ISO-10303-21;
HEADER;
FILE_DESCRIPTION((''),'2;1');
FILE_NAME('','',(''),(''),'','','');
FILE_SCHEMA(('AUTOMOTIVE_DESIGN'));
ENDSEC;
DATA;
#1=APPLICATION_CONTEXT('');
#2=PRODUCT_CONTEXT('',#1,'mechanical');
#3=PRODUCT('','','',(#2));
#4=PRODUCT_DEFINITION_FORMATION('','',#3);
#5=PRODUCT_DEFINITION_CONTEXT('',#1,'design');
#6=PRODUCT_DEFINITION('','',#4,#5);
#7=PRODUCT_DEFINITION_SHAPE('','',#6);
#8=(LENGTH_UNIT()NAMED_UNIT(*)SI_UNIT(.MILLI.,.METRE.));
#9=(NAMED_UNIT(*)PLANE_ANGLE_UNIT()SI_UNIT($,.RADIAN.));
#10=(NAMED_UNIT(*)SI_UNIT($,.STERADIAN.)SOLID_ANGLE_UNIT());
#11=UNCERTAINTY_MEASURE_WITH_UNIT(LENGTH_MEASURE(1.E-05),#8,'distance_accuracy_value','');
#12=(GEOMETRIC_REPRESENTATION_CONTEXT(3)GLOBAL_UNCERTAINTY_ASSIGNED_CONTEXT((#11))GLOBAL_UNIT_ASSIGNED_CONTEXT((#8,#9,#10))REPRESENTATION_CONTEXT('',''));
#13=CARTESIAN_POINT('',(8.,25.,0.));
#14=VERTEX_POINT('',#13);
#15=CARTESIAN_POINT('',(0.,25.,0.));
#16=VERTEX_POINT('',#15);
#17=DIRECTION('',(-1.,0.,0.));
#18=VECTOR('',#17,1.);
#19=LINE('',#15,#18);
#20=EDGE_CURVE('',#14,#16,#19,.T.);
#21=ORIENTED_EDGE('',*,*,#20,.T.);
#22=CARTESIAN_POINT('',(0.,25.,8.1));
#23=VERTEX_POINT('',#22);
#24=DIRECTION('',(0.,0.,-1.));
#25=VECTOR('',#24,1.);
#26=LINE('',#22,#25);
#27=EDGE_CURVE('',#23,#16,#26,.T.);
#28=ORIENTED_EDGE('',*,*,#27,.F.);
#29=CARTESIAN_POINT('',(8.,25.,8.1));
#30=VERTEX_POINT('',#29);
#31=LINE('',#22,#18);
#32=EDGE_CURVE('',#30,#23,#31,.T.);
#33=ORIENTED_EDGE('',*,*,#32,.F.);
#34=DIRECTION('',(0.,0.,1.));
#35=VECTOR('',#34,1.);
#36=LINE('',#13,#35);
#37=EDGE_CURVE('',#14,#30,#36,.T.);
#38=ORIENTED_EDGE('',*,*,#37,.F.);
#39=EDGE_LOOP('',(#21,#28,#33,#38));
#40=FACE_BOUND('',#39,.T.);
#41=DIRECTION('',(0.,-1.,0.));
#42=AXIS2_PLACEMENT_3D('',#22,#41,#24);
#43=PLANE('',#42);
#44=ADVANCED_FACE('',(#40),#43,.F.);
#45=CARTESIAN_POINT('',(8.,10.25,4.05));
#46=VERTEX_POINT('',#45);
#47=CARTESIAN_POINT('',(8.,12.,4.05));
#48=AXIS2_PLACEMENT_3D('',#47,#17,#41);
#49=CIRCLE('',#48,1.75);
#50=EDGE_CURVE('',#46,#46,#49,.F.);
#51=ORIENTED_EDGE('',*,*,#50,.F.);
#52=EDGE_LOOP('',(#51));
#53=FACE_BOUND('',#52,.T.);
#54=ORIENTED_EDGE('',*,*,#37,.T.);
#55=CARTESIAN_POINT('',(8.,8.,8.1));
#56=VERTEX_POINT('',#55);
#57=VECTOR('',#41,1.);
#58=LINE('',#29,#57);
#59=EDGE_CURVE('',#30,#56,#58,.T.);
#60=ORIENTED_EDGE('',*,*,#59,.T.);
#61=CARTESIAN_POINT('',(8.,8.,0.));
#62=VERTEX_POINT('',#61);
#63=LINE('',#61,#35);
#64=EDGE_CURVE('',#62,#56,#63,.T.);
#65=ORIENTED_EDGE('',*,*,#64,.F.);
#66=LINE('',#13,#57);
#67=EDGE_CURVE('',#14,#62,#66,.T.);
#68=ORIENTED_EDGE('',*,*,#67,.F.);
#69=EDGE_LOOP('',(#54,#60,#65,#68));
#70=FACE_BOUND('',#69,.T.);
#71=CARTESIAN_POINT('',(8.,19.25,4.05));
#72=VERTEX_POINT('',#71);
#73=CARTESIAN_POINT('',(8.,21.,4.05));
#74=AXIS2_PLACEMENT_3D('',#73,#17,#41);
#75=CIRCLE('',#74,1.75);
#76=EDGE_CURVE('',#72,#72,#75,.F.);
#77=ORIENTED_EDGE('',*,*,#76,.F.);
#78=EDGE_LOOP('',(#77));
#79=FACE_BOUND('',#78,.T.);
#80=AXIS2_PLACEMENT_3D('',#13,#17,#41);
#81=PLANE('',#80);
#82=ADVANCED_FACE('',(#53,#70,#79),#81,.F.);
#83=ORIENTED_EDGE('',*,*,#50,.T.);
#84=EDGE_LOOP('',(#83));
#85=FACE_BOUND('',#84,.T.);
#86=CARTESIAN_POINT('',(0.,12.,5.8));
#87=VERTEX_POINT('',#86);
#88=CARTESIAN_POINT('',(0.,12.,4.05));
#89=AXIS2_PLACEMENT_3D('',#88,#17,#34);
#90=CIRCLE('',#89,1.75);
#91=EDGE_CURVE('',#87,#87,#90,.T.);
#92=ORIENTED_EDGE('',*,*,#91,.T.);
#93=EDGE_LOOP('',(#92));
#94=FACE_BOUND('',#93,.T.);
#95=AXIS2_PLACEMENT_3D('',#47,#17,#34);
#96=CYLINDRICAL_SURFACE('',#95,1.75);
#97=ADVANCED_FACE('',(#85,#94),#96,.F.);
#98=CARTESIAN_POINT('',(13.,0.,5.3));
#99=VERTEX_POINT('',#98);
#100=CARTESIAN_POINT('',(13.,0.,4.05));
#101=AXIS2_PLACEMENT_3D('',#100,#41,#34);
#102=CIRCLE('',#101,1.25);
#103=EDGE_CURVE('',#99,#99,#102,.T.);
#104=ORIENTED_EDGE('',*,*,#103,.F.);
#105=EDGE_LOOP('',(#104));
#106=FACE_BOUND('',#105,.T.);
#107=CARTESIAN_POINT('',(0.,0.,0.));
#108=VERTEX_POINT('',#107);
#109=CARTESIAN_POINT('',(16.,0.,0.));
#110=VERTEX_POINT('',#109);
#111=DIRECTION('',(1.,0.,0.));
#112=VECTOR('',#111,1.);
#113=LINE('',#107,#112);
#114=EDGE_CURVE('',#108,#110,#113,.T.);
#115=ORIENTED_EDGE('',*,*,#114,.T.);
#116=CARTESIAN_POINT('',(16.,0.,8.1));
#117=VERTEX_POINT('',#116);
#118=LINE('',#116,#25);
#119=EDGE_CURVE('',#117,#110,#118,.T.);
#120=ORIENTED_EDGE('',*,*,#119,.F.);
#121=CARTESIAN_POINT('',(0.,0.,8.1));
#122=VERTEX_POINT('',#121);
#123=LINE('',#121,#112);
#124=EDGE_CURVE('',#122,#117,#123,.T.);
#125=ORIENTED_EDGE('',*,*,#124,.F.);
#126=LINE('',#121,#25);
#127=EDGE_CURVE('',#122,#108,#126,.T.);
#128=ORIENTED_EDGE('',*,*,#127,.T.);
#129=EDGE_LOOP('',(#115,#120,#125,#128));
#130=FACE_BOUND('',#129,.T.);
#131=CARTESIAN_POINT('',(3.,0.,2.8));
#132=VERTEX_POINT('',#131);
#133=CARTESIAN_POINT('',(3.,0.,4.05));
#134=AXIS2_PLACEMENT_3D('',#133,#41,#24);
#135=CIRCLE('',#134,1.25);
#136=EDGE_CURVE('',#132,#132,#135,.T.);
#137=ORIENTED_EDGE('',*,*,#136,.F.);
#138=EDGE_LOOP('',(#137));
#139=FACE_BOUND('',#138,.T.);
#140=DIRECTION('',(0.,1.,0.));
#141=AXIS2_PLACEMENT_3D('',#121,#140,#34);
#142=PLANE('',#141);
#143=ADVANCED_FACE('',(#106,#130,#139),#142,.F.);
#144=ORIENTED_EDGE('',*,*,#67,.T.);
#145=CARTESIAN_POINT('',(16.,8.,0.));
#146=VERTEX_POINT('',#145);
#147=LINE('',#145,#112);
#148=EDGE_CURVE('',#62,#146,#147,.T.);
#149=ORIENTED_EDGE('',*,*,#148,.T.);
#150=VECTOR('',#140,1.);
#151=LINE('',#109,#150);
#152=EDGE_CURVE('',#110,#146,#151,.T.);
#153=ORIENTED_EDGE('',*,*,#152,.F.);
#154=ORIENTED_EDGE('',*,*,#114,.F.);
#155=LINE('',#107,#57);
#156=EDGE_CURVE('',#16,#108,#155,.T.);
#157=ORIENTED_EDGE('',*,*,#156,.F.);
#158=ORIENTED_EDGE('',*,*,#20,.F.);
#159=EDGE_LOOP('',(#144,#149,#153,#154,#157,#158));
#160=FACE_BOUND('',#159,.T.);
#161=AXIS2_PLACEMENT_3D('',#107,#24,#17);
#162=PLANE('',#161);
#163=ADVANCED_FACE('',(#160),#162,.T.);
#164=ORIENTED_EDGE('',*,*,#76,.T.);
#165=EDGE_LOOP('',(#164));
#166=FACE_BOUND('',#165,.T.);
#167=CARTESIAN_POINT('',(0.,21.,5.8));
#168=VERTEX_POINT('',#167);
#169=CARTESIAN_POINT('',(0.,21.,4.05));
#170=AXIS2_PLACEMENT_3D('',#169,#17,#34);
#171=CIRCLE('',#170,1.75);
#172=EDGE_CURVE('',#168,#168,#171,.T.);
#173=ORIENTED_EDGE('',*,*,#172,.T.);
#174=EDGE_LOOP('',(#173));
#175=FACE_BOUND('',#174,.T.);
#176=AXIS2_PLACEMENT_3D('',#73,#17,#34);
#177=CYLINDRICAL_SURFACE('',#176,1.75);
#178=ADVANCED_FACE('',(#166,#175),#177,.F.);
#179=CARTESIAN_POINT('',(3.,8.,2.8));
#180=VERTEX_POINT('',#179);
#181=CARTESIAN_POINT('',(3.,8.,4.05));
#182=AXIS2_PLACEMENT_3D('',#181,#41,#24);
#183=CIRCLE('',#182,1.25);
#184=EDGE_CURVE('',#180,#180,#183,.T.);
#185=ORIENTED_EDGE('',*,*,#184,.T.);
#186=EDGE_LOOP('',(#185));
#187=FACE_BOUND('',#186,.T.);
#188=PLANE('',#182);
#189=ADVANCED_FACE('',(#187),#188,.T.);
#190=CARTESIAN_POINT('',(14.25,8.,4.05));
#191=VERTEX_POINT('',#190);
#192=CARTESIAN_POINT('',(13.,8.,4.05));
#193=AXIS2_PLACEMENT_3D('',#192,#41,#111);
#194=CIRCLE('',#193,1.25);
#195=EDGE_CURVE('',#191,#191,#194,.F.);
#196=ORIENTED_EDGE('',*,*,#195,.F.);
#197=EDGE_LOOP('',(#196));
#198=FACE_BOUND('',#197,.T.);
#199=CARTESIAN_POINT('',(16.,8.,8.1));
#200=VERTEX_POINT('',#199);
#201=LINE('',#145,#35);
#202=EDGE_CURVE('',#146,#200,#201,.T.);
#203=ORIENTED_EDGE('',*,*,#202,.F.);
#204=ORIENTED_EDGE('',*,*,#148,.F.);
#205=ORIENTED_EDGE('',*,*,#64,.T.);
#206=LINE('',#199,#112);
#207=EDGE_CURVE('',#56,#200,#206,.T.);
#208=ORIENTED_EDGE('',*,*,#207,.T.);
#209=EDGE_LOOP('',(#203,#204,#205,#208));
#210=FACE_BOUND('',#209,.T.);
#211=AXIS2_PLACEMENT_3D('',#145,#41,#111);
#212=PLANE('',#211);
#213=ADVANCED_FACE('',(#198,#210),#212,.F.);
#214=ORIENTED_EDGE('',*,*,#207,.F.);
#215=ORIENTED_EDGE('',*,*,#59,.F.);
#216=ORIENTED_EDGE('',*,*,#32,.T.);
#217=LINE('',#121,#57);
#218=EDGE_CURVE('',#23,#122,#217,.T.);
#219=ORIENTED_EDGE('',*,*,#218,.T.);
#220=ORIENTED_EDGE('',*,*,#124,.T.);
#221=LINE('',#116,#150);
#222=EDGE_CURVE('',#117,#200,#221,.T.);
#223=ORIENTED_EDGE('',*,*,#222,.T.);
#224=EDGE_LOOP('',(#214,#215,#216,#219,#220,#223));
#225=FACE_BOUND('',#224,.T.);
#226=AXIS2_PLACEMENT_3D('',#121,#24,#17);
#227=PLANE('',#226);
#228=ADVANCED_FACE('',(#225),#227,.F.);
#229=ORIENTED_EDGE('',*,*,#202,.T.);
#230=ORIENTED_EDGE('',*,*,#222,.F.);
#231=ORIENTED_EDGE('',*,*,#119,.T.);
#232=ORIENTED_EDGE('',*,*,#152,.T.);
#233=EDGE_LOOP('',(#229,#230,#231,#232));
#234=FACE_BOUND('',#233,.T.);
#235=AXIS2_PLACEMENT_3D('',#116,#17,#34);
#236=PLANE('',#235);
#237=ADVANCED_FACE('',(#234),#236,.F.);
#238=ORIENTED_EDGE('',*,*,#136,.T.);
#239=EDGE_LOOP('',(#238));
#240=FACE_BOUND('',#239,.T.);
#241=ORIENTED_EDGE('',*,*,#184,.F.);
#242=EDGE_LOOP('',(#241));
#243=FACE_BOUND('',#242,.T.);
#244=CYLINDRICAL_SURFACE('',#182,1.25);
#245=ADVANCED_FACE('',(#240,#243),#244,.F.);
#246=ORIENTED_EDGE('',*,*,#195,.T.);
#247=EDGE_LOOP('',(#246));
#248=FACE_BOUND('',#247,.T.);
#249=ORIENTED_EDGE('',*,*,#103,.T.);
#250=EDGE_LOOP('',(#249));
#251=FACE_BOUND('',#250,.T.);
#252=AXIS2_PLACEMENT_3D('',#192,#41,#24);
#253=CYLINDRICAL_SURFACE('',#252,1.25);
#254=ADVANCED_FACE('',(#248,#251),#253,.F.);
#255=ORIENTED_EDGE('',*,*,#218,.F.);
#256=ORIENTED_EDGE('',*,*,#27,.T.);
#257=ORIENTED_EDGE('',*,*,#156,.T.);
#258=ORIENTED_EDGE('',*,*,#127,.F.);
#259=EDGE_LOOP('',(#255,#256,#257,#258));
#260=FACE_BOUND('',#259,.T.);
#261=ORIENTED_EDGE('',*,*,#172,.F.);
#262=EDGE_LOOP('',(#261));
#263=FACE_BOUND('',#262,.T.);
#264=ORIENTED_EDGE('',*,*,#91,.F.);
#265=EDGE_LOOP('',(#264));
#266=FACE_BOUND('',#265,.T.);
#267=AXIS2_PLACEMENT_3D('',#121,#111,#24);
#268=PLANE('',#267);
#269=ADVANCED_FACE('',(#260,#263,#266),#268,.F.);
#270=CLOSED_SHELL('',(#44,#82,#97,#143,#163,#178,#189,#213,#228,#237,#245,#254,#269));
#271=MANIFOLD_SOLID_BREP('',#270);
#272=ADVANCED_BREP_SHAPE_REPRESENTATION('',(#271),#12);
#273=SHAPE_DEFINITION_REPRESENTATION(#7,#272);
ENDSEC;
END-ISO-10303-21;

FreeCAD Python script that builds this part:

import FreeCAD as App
import Part
import Sketcher

V = App.Vector


def add_polygon(sketch, points):
    """Adds a closed chain of lines whose ends are joined by coincident constraints."""
    first, n = sketch.GeometryCount, len(points)
    for a, b in zip(points, points[1:] + points[:1]):
        sketch.addGeometry(Part.LineSegment(App.Vector(*a, 0), App.Vector(*b, 0)), False)
    for i in range(n):
        sketch.addConstraint(Sketcher.Constraint("Coincident", first + i, 2, first + (i + 1) % n, 1))

doc = App.newDocument("Part")
params = doc.addObject("Spreadsheet::Sheet", "Params")
for row, (alias, value) in enumerate([
    ("sketch1_width", "16 mm"),
    ("sketch1_height", "25 mm"),
    ("pad1_length", "8.1 mm"),
    ("sketch2_diameter", "2.5 mm"),
    ("pocket1_length", "8 mm"),
    ("sketch3_diameter", "3.5 mm"),
    ("pocket2_length", "8 mm"),
    ("sketch4_width", "8 mm"),
    ("sketch4_height", "17 mm"),
], start=1):
    params.set(f"A{row}", alias)
    params.set(f"B{row}", "=" + value)
    params.setAlias(f"B{row}", alias)

body = doc.addObject("PartDesign::Body", "Body")

# Sketch on XY plane
sketch1 = body.newObject("Sketcher::SketchObject", "Sketch")
sketch1.AttachmentSupport = (doc.getObject("XY_Plane"), [""])
sketch1.MapMode = "FlatFace"
add_polygon(sketch1, [(0, 25), (0, 0), (16, 0), (16, 25)])  # lines 0-3
sketch1.addConstraint(Sketcher.Constraint("Vertical", 0))
sketch1.addConstraint(Sketcher.Constraint("Horizontal", 1))
sketch1.addConstraint(Sketcher.Constraint("Vertical", 2))
sketch1.addConstraint(Sketcher.Constraint("Horizontal", 3))
sketch1.addConstraint(Sketcher.Constraint("Coincident", 0, 2, -1, 1))
sketch1.addConstraint(Sketcher.Constraint("DistanceX", 1, 1, 1, 2, 16.0))
sketch1.addConstraint(Sketcher.Constraint("DistanceY", 0, 2, 0, 1, 25.0))
sketch1.setExpression("Constraints[9]", "Params.sketch1_width")
sketch1.setExpression("Constraints[10]", "Params.sketch1_height")
pad1 = body.newObject("PartDesign::Pad", "Pad")
pad1.Profile = sketch1
pad1.setExpression("Length", "Params.pad1_length")

# Sketch on XZ plane
sketch2 = body.newObject("Sketcher::SketchObject", "Sketch001")
sketch2.AttachmentSupport = (doc.getObject("XZ_Plane"), [""])
sketch2.MapMode = "FlatFace"
sketch2.addGeometry(Part.Circle(V(3, 4, 0), V(0, 0, 1), 1.2), False)
sketch2.addGeometry(Part.Circle(V(13, 4, 0), V(0, 0, 1), 1.2), False)
sketch2.addConstraint(Sketcher.Constraint("Equal", 0, 1))
sketch2.addConstraint(Sketcher.Constraint("Horizontal", 0, 3, 1, 3))
sketch2.addConstraint(Sketcher.Constraint("Diameter", 0, 2.5))
sketch2.addConstraint(Sketcher.Constraint("DistanceX", -1, 1, 0, 3, 3.0))
sketch2.addConstraint(Sketcher.Constraint("DistanceX", -1, 1, 1, 3, 13.0))
sketch2.addConstraint(Sketcher.Constraint("DistanceY", -1, 1, 0, 3, 4.05))
sketch2.setExpression("Constraints[2]", "Params.sketch2_diameter")
pocket1 = body.newObject("PartDesign::Pocket", "Pocket")
pocket1.Profile = sketch2
pocket1.setExpression("Length", "Params.pocket1_length")

# Sketch on YZ plane
sketch3 = body.newObject("Sketcher::SketchObject", "Sketch002")
sketch3.AttachmentSupport = (doc.getObject("YZ_Plane"), [""])
sketch3.MapMode = "FlatFace"
sketch3.addGeometry(Part.Circle(V(21, 4, 0), V(0, 0, 1), 1.8), False)
sketch3.addGeometry(Part.Circle(V(12, 4, 0), V(0, 0, 1), 1.8), False)
sketch3.addConstraint(Sketcher.Constraint("Equal", 0, 1))
sketch3.addConstraint(Sketcher.Constraint("Horizontal", 0, 3, 1, 3))
sketch3.addConstraint(Sketcher.Constraint("Diameter", 0, 3.5))
sketch3.addConstraint(Sketcher.Constraint("DistanceX", -1, 1, 0, 3, 21.0))
sketch3.addConstraint(Sketcher.Constraint("DistanceX", -1, 1, 1, 3, 12.0))
sketch3.addConstraint(Sketcher.Constraint("DistanceY", -1, 1, 0, 3, 4.05))
sketch3.setExpression("Constraints[2]", "Params.sketch3_diameter")
pocket2 = body.newObject("PartDesign::Pocket", "Pocket001")
pocket2.Profile = sketch3
pocket2.setExpression("Length", "Params.pocket2_length")
pocket2.Reversed = True

# Sketch on XY plane
sketch4 = body.newObject("Sketcher::SketchObject", "Sketch003")
sketch4.AttachmentSupport = (doc.getObject("XY_Plane"), [""])
sketch4.MapMode = "FlatFace"
sketch4.AttachmentOffset = App.Placement(V(0, 0, 8.1), App.Rotation())
add_polygon(sketch4, [(8, 25), (8, 8), (16, 8), (16, 25)])  # lines 0-3
sketch4.addConstraint(Sketcher.Constraint("Vertical", 0))
sketch4.addConstraint(Sketcher.Constraint("Horizontal", 1))
sketch4.addConstraint(Sketcher.Constraint("Vertical", 2))
sketch4.addConstraint(Sketcher.Constraint("Horizontal", 3))
sketch4.addConstraint(Sketcher.Constraint("DistanceX", 1, 1, 1, 2, 8.0))
sketch4.addConstraint(Sketcher.Constraint("DistanceY", 0, 2, 0, 1, 17.0))
sketch4.addConstraint(Sketcher.Constraint("DistanceX", -1, 1, 0, 2, 8.0))
sketch4.addConstraint(Sketcher.Constraint("DistanceY", -1, 1, 0, 2, 8.0))
sketch4.setExpression("Constraints[8]", "Params.sketch4_width")
sketch4.setExpression("Constraints[9]", "Params.sketch4_height")
pocket3 = body.newObject("PartDesign::Pocket", "Pocket002")
pocket3.Profile = sketch4
pocket3.Type = "ThroughAll"

doc.recompute()
